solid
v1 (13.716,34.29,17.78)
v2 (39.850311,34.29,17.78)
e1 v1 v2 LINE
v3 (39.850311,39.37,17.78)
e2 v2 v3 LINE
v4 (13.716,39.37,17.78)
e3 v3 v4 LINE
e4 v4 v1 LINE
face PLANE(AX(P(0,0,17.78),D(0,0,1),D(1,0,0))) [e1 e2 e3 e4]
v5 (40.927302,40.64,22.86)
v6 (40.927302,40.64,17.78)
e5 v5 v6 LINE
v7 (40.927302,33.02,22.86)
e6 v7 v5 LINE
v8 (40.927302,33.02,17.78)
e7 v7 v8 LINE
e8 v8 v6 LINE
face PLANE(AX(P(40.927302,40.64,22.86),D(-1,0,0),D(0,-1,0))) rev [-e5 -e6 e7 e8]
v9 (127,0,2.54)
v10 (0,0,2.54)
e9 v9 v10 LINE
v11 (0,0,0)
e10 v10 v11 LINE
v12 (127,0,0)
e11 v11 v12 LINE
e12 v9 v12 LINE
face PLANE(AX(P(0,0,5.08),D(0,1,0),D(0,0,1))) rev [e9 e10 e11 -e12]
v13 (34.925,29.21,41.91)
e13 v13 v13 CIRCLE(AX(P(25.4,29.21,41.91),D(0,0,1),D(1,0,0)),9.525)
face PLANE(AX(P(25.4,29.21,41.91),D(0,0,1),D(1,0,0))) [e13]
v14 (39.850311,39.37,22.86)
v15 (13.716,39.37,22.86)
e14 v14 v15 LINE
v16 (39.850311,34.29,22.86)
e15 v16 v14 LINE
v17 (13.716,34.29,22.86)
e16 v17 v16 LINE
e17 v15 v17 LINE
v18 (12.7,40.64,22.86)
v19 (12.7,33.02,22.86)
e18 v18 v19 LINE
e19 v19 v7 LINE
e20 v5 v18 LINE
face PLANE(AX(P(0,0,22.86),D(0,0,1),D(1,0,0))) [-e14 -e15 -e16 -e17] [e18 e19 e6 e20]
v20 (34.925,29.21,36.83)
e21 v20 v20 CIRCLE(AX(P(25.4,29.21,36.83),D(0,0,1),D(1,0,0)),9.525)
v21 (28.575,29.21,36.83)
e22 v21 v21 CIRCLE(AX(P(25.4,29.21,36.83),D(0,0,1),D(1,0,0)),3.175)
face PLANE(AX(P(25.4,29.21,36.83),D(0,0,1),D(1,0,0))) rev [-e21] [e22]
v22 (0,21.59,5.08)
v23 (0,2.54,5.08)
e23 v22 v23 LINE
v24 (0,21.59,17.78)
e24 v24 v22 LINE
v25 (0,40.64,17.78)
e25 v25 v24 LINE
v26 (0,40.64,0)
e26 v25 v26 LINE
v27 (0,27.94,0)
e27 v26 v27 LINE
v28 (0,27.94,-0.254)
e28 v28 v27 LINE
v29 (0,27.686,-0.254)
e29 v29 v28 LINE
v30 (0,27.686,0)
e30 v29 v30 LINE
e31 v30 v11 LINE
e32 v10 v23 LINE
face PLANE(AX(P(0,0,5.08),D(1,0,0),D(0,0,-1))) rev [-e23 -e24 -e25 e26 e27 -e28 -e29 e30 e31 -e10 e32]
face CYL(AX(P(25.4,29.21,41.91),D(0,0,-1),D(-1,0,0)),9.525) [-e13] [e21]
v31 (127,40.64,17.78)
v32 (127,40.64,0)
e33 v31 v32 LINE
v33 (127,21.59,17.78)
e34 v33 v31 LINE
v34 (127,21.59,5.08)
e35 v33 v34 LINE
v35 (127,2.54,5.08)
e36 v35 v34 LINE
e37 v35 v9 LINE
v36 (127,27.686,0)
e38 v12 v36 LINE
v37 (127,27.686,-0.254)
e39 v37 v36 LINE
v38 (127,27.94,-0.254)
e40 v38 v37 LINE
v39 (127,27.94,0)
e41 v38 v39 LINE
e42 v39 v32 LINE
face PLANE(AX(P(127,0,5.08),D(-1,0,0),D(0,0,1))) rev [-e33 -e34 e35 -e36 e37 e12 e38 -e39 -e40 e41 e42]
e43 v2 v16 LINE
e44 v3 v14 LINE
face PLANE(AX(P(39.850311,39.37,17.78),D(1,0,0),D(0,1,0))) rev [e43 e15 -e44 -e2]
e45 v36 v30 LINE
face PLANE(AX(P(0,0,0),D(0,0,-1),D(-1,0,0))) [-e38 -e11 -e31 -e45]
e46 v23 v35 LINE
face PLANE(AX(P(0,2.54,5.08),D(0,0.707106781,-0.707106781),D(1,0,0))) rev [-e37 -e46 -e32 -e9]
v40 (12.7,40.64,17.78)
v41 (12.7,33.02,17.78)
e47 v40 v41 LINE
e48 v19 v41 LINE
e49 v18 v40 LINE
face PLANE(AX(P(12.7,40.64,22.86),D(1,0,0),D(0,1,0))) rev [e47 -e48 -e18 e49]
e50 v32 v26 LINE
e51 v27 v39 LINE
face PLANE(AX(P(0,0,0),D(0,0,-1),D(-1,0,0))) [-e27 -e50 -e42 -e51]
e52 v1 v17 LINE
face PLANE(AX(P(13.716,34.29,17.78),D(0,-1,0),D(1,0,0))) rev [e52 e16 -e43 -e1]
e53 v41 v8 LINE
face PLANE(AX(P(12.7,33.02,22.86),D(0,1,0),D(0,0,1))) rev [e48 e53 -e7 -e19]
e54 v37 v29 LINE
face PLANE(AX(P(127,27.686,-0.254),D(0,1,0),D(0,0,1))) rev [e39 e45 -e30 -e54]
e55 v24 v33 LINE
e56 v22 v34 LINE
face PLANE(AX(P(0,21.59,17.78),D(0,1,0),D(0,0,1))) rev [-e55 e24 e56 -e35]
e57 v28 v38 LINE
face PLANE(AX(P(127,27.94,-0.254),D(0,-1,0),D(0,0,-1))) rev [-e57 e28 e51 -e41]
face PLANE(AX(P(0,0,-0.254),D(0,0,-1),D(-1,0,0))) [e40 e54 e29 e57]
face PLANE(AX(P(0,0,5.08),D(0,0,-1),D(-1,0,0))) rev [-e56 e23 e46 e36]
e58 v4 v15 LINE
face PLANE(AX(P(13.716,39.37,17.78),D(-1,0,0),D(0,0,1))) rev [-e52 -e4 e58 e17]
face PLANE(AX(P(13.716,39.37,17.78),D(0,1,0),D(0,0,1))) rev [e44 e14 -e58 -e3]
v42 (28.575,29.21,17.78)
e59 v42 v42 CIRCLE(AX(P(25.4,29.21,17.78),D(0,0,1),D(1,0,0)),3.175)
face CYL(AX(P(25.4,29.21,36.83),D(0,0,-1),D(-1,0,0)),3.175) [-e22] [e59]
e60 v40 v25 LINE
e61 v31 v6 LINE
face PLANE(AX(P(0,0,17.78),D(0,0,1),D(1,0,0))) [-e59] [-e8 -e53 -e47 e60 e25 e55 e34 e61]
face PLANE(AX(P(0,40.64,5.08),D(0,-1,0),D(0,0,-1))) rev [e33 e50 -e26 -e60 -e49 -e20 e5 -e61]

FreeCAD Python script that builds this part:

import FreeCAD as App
import Part
import Sketcher
Q = App.Units.Quantity


def edges_at(feature, points):
    """Names of the edges that pass closest to the given points."""
    edges = feature.Shape.Edges
    near = lambda p: min(range(len(edges)), key=lambda i: edges[i].distToShape(Part.Vertex(*p))[0])
    return sorted({f"Edge{near(p) + 1}" for p in points})


def add_polygon(sketch, points):
    """Adds a closed chain of lines whose ends are joined by coincident constraints."""
    first, n = sketch.GeometryCount, len(points)
    for a, b in zip(points, points[1:] + points[:1]):
        sketch.addGeometry(Part.LineSegment(App.Vector(*a, 0), App.Vector(*b, 0)), False)
    for i in range(n):
        sketch.addConstraint(Sketcher.Constraint("Coincident", first + i, 2, first + (i + 1) % n, 1))

doc = App.newDocument("Part")
body = doc.addObject("PartDesign::Body", "Body")

sketch1 = body.newObject("Sketcher::SketchObject", "Sketch")
sketch1.AttachmentSupport = (doc.getObject("XY_Plane"), [""])
sketch1.MapMode = "FlatFace"
add_polygon(sketch1, [(0, 40.64), (0, 0), (127, 0), (127, 40.64)])
sketch1.addConstraint([
    Sketcher.Constraint("Vertical", 0),
    Sketcher.Constraint("Horizontal", 1),
    Sketcher.Constraint("Vertical", 2),
    Sketcher.Constraint("Horizontal", 3),
    Sketcher.Constraint("Coincident", 0, 2, -1, 1),
    Sketcher.Constraint("DistanceX", 1, 1, 1, 2, Q("5 in")),
    Sketcher.Constraint("DistanceY", 0, 2, 0, 1, Q("1.6 in")),
])
pad1 = body.newObject("PartDesign::Pad", "Pad")
pad1.Profile = sketch1
pad1.Length = Q("0.2 in")
doc.recompute()

chamfer = body.newObject("PartDesign::Chamfer", "Chamfer")
chamfer.Base = (pad1, edges_at(pad1, [(63.5, 0, 5.08)]))
chamfer.Size = Q("0.1 in")

sketch2 = body.newObject("Sketcher::SketchObject", "Sketch001")
sketch2.AttachmentSupport = (doc.getObject("XY_Plane"), [""])
sketch2.MapMode = "FlatFace"
sketch2.AttachmentOffset = App.Placement(App.Vector(0, 0, 0.2 * 25.4), App.Rotation())
add_polygon(sketch2, [(0, 40.64), (0, 21.59), (127, 21.59), (127, 40.64)])
sketch2.addConstraint([
    Sketcher.Constraint("Vertical", 0),
    Sketcher.Constraint("Horizontal", 1),
    Sketcher.Constraint("Vertical", 2),
    Sketcher.Constraint("Horizontal", 3),
    Sketcher.Constraint("PointOnObject", 0, 2, -2),
    Sketcher.Constraint("DistanceX", 1, 1, 1, 2, Q("5 in")),
    Sketcher.Constraint("DistanceY", 0, 2, 0, 1, Q("0.75 in")),
    Sketcher.Constraint("DistanceY", -1, 1, 2, 2, Q("1.6 in")),
])
pad2 = body.newObject("PartDesign::Pad", "Pad001")
pad2.Profile = sketch2
pad2.Length = Q("0.5 in")

sketch3 = body.newObject("Sketcher::SketchObject", "Sketch002")
sketch3.AttachmentSupport = (doc.getObject("XY_Plane"), [""])
sketch3.MapMode = "FlatFace"
sketch3.AttachmentOffset = App.Placement(App.Vector(0, 0, 0.7 * 25.4), App.Rotation())
sketch3.addGeometry(Part.Circle(App.Vector(25.4, 29.21, 0), App.Vector(0, 0, 1), 3.175), False)
sketch3.addConstraint([
    Sketcher.Constraint("Diameter", 0, Q("0.25 in")),
    Sketcher.Constraint("DistanceX", -1, 1, 0, 3, Q("1 in")),
    Sketcher.Constraint("DistanceY", -1, 1, 0, 3, Q("1.15 in")),
])
pad3 = body.newObject("PartDesign::Pad", "Pad002")
pad3.Profile = sketch3
pad3.Length = Q("0.75 in")

sketch4 = body.newObject("Sketcher::SketchObject", "Sketch003")
sketch4.AttachmentSupport = (doc.getObject("XY_Plane"), [""])
sketch4.MapMode = "FlatFace"
sketch4.AttachmentOffset = App.Placement(App.Vector(0, 0, 1.45 * 25.4), App.Rotation())
sketch4.addGeometry(Part.Circle(App.Vector(25.4, 29.21, 0), App.Vector(0, 0, 1), 9.525), False)
sketch4.addConstraint([
    Sketcher.Constraint("Diameter", 0, Q("0.75 in")),
    Sketcher.Constraint("DistanceX", -1, 1, 0, 3, Q("1 in")),
    Sketcher.Constraint("DistanceY", -1, 1, 0, 3, Q("1.15 in")),
])
pad4 = body.newObject("PartDesign::Pad", "Pad003")
pad4.Profile = sketch4
pad4.Length = Q("0.2 in")

sketch5 = body.newObject("Sketcher::SketchObject", "Sketch004")
sketch5.AttachmentSupport = (doc.getObject("XY_Plane"), [""])
sketch5.MapMode = "FlatFace"
sketch5.AttachmentOffset = App.Placement(App.Vector(0, 0, 0.7 * 25.4), App.Rotation())
add_polygon(sketch5, [(12.7, 40.64), (12.7, 33.02), (40.927302, 33.02), (40.927302, 40.64)])
sketch5.addConstraint([
    Sketcher.Constraint("Vertical", 0),
    Sketcher.Constraint("Horizontal", 1),
    Sketcher.Constraint("Vertical", 2),
    Sketcher.Constraint("Horizontal", 3),
    Sketcher.Constraint("DistanceY", 0, 2, 0, 1, Q("0.3 in")),
    Sketcher.Constraint("DistanceX", -1, 1, 0, 2, Q("0.5 in")),
    Sketcher.Constraint("DistanceY", -1, 1, 0, 2, Q("1.3 in")),
    Sketcher.Constraint("DistanceX", 1, 1, 1, 2, 28.227302),
])
pad5 = body.newObject("PartDesign::Pad", "Pad004")
pad5.Profile = sketch5
pad5.Length = Q("0.2 in")

sketch6 = body.newObject("Sketcher::SketchObject", "Sketch005")
sketch6.AttachmentSupport = (doc.getObject("XY_Plane"), [""])
sketch6.MapMode = "FlatFace"
sketch6.AttachmentOffset = App.Placement(App.Vector(0, 0, 0.9 * 25.4), App.Rotation())
add_polygon(sketch6, [(13.716, 39.37), (13.716, 34.29), (39.850311, 34.29), (39.850311, 39.37)])
sketch6.addConstraint([
    Sketcher.Constraint("Vertical", 0),
    Sketcher.Constraint("Horizontal", 1),
    Sketcher.Constraint("Vertical", 2),
    Sketcher.Constraint("Horizontal", 3),
    Sketcher.Constraint("DistanceY", 0, 2, 0, 1, Q("0.2 in")),
    Sketcher.Constraint("DistanceX", -1, 1, 0, 2, Q("0.54 in")),
    Sketcher.Constraint("DistanceY", -1, 1, 0, 2, Q("1.35 in")),
    Sketcher.Constraint("DistanceX", 1, 1, 1, 2, 26.134311),
])
pocket1 = body.newObject("PartDesign::Pocket", "Pocket")
pocket1.Profile = sketch6
pocket1.Length = Q("0.2 in")

sketch7 = body.newObject("Sketcher::SketchObject", "Sketch006")
sketch7.AttachmentSupport = (doc.getObject("XY_Plane"), [""])
sketch7.MapMode = "FlatFace"
add_polygon(sketch7, [(127, 27.94), (127, 27.686), (0, 27.686), (0, 27.94)])
sketch7.addConstraint([
    Sketcher.Constraint("Vertical", 0),
    Sketcher.Constraint("Horizontal", 1),
    Sketcher.Constraint("Vertical", 2),
    Sketcher.Constraint("Horizontal", 3),
    Sketcher.Constraint("PointOnObject", 1, 2, -2),
    Sketcher.Constraint("DistanceX", 1, 2, 1, 1, Q("5 in")),
    Sketcher.Constraint("DistanceY", 0, 2, 0, 1, Q("0.01 in")),
    Sketcher.Constraint("DistanceY", -1, 1, 2, 2, Q("1.1 in")),
])
pad6 = body.newObject("PartDesign::Pad", "Pad005")
pad6.Profile = sketch7
pad6.Length = Q("0.01 in")
pad6.Reversed = True

doc.recompute()
